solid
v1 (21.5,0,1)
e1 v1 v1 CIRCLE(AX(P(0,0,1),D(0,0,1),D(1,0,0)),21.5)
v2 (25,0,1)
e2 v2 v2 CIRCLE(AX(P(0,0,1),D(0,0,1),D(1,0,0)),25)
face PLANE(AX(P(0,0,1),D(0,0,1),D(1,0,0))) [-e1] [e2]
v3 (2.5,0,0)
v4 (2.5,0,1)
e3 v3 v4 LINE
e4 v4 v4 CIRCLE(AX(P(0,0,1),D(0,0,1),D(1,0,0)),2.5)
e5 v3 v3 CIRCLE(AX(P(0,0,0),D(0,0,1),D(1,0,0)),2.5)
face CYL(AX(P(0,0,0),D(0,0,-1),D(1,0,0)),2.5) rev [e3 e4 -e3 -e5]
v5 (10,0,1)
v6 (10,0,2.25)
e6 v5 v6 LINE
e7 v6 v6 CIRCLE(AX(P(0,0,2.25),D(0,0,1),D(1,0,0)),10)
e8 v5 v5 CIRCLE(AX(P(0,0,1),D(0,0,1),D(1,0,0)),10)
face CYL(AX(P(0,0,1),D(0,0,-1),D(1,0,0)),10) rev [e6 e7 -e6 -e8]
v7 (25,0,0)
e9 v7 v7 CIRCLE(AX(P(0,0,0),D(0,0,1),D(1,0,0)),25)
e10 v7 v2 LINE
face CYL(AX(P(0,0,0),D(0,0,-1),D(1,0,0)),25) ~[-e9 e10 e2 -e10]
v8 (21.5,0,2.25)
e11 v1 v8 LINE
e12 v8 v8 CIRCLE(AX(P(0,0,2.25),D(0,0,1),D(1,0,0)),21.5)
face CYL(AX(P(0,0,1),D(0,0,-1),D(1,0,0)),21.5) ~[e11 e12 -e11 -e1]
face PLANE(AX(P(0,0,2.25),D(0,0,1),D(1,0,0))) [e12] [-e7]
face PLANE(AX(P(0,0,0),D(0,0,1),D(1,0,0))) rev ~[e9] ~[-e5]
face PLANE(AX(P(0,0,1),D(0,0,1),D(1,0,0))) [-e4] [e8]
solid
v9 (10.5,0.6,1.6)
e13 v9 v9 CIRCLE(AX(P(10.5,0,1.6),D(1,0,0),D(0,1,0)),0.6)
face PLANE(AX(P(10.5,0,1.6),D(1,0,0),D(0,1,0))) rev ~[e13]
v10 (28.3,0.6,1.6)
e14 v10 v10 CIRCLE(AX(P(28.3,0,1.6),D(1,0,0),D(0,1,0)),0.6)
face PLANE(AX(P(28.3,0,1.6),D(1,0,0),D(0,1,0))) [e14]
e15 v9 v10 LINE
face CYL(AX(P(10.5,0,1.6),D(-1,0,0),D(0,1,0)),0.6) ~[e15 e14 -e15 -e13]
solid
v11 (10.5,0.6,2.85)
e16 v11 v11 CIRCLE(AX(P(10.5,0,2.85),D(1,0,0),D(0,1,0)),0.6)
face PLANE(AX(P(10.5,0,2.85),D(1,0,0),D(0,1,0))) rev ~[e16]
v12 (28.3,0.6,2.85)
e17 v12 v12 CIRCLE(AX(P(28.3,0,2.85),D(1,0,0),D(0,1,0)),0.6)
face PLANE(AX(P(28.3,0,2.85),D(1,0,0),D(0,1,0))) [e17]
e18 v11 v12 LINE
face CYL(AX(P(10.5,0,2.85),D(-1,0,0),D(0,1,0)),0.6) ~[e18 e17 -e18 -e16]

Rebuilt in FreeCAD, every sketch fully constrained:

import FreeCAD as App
import Part
import Sketcher
from FreeCAD import Vector

doc = App.newDocument("Part")
body = doc.addObject("PartDesign::Body", "Body")

sketch1 = body.newObject("Sketcher::SketchObject", "Sketch")
sketch1.AttachmentSupport = (doc.getObject("XY_Plane"), [""])
sketch1.MapMode = "FlatFace"
sketch1.addGeometry(Part.Circle(Vector(0, 0, 0), Vector(0, 0, 1), 25), False)
sketch1.addGeometry(Part.Circle(Vector(0, 0, 0), Vector(0, 0, 1), 2.5), False)
sketch1.addConstraint(Sketcher.Constraint("Coincident", 0, 3, -1, 1))
sketch1.addConstraint(Sketcher.Constraint("Coincident", 1, 3, -1, 1))
sketch1.addConstraint(Sketcher.Constraint("Diameter", 0, 50.0))
sketch1.addConstraint(Sketcher.Constraint("Diameter", 1, 5.0))
pad1 = body.newObject("PartDesign::Pad", "Pad")
pad1.Profile = sketch1
pad1.Length = 1

sketch2 = body.newObject("Sketcher::SketchObject", "Sketch001")
sketch2.AttachmentSupport = (doc.getObject("XY_Plane"), [""])
sketch2.MapMode = "FlatFace"
sketch2.AttachmentOffset = App.Placement(Vector(0, 0, 1), App.Rotation())
sketch2.addGeometry(Part.Circle(Vector(0, 0, 0), Vector(0, 0, 1), 22), False)
sketch2.addGeometry(Part.Circle(Vector(0, 0, 0), Vector(0, 0, 1), 10), False)
sketch2.addConstraint(Sketcher.Constraint("Coincident", 0, 3, -1, 1))
sketch2.addConstraint(Sketcher.Constraint("Coincident", 1, 3, -1, 1))
sketch2.addConstraint(Sketcher.Constraint("Diameter", 0, 43.0))
sketch2.addConstraint(Sketcher.Constraint("Diameter", 1, 20.0))
pad2 = body.newObject("PartDesign::Pad", "Pad001")
pad2.Profile = sketch2
pad2.Length = 1.25
body2 = doc.addObject("PartDesign::Body", "Body001")

sketch3 = body2.newObject("Sketcher::SketchObject", "Sketch002")
sketch3.AttachmentSupport = (doc.getObject("YZ_Plane001"), [""])
sketch3.MapMode = "FlatFace"
sketch3.AttachmentOffset = App.Placement(Vector(0, 0, 10.5), App.Rotation())
sketch3.addGeometry(Part.Circle(Vector(0, 1.6, 0), Vector(0, 0, 1), 0.6), False)
sketch3.addConstraint(Sketcher.Constraint("PointOnObject", 0, 3, -2))
sketch3.addConstraint(Sketcher.Constraint("Diameter", 0, 1.2))
sketch3.addConstraint(Sketcher.Constraint("DistanceY", -1, 1, 0, 3, 1.6))
pad3 = body2.newObject("PartDesign::Pad", "Pad002")
pad3.Profile = sketch3
pad3.Length = 17.8
body3 = doc.addObject("PartDesign::Body", "Body002")

sketch4 = body3.newObject("Sketcher::SketchObject", "Sketch003")
sketch4.AttachmentSupport = (doc.getObject("YZ_Plane002"), [""])
sketch4.MapMode = "FlatFace"
sketch4.AttachmentOffset = App.Placement(Vector(0, 0, 10.5), App.Rotation())
sketch4.addGeometry(Part.Circle(Vector(0, 2.9, 0), Vector(0, 0, 1), 0.6), False)
sketch4.addConstraint(Sketcher.Constraint("PointOnObject", 0, 3, -2))
sketch4.addConstraint(Sketcher.Constraint("Diameter", 0, 1.2))
sketch4.addConstraint(Sketcher.Constraint("DistanceY", -1, 1, 0, 3, 2.85))
pad4 = body3.newObject("PartDesign::Pad", "Pad003")
pad4.Profile = sketch4
pad4.Length = 17.8

doc.recompute()
